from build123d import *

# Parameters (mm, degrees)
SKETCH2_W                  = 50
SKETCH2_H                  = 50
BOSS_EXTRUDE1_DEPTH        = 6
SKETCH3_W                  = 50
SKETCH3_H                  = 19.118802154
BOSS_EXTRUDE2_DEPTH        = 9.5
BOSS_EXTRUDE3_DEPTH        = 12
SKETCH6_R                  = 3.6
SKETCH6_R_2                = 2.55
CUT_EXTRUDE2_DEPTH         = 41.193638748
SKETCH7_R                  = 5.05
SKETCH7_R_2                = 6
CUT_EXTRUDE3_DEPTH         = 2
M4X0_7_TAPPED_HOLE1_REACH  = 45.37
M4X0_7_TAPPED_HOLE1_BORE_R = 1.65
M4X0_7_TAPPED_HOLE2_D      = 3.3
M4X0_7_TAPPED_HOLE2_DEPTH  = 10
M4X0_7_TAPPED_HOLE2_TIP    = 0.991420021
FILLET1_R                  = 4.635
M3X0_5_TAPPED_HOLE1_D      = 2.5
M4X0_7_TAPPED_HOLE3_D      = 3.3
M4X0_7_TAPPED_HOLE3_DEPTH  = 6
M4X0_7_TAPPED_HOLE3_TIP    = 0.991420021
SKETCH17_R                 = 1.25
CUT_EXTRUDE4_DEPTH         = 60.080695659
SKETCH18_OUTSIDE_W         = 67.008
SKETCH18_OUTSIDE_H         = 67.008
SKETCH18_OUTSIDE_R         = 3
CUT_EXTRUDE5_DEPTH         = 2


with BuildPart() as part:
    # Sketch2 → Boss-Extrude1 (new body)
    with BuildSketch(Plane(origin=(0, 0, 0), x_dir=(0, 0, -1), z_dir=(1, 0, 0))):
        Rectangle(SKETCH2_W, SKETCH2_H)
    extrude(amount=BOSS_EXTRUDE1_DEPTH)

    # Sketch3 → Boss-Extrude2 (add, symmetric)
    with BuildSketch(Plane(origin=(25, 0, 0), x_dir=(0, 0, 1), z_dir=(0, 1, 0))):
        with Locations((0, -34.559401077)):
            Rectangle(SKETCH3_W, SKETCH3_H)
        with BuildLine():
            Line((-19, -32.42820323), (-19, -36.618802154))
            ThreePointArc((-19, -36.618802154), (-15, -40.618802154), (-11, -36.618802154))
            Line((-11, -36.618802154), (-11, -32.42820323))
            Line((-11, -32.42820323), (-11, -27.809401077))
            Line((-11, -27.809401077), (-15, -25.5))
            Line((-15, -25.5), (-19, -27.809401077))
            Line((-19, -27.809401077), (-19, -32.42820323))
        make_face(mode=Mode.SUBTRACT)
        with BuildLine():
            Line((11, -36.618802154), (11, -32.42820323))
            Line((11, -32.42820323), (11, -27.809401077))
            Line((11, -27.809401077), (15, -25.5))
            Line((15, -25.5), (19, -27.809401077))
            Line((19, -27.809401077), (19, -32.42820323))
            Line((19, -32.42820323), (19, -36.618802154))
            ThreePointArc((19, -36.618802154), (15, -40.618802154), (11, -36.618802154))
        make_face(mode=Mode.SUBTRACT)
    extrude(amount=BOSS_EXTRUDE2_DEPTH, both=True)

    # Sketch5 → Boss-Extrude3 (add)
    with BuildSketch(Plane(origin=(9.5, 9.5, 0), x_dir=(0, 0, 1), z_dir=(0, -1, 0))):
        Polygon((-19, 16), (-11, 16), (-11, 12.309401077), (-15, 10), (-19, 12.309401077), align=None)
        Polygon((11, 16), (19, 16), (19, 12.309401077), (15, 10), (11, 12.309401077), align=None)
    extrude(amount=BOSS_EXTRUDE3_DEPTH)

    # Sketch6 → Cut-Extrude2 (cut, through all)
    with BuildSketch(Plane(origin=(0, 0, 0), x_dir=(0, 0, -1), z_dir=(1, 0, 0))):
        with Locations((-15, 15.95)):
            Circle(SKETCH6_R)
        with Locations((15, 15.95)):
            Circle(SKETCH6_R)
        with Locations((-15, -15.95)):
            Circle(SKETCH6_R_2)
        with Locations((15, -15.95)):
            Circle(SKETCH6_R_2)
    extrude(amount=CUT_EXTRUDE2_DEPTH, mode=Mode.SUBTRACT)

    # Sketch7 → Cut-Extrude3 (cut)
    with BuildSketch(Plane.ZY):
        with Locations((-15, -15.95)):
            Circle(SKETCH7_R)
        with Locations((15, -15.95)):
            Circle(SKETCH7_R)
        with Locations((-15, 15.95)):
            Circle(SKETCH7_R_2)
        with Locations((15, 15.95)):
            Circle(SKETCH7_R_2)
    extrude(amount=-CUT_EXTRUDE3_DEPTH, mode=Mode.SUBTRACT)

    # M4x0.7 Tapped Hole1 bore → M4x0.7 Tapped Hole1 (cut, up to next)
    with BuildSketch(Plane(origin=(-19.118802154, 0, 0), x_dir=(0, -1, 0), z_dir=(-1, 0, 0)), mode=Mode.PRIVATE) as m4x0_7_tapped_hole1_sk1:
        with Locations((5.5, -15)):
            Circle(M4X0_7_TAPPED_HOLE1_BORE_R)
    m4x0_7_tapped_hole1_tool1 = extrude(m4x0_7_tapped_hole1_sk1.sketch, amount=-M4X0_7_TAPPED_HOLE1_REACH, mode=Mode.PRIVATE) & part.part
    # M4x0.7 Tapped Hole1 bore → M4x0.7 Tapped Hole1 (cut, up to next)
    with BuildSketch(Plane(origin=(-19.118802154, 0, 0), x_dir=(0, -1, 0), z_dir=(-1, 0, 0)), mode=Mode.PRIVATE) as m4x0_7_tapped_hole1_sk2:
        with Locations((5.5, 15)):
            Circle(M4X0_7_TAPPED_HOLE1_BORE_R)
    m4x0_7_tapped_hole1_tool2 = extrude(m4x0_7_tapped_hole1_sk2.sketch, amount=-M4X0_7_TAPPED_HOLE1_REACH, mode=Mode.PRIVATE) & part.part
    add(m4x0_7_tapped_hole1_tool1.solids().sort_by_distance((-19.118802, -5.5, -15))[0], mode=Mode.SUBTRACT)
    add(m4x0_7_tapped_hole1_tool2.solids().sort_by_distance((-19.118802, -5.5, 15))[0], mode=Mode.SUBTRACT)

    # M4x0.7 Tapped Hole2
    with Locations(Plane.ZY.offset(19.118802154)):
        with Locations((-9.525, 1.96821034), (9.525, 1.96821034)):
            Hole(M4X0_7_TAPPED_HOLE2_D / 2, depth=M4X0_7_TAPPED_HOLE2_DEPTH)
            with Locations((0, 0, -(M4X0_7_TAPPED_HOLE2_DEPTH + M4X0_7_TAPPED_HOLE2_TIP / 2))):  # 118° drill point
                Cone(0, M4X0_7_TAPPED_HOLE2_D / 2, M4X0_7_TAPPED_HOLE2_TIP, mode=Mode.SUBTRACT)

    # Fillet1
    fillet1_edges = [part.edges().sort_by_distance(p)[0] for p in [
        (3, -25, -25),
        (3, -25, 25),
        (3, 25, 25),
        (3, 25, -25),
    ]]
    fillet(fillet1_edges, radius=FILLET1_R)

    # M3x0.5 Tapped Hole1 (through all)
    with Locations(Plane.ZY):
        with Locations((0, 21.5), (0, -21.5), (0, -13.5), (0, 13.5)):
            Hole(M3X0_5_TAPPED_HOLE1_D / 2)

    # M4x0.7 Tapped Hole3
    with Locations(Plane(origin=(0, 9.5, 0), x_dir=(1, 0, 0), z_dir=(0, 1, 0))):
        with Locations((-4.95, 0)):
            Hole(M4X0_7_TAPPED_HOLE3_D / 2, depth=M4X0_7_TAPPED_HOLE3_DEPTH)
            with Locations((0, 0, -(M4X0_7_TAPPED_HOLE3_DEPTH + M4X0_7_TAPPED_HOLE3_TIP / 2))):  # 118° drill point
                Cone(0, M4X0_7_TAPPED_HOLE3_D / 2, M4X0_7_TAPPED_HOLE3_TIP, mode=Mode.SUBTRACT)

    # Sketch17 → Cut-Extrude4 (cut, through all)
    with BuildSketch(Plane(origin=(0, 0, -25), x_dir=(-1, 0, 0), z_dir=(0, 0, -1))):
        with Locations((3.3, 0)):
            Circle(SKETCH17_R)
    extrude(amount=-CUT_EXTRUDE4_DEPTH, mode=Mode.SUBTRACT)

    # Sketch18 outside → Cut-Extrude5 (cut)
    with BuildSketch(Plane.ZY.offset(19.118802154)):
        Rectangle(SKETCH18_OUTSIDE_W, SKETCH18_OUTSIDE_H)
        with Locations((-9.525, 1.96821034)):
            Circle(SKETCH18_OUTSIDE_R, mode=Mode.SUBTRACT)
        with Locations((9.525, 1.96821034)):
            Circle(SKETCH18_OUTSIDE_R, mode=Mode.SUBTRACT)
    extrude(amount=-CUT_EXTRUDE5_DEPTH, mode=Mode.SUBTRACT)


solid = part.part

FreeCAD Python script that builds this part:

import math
import FreeCAD as App
import Part
import Sketcher

V = App.Vector
Q = App.Units.Quantity


def edges_at(feature, points):
    """Names of the edges that pass closest to the given points."""
    edges = feature.Shape.Edges
    near = lambda p: min(range(len(edges)), key=lambda i: edges[i].distToShape(Part.Vertex(*p))[0])
    return sorted({f"Edge{near(p) + 1}" for p in points})

doc = App.newDocument("Part")
body = doc.addObject("PartDesign::Body", "Body")

sketch1 = body.newObject("Sketcher::SketchObject", "Sketch")
sketch1.AttachmentSupport = (doc.getObject("YZ_Plane"), [""])
sketch1.MapMode = "FlatFace"
sketch1.addGeometry(Part.LineSegment(V(25, 25, 0), V(-25, 25, 0)), False)
sketch1.addGeometry(Part.LineSegment(V(-25, 25, 0), V(-25, -25, 0)), False)
sketch1.addGeometry(Part.LineSegment(V(-25, -25, 0), V(25, -25, 0)), False)
sketch1.addGeometry(Part.LineSegment(V(25, -25, 0), V(25, 25, 0)), False)
sketch1.addConstraint(Sketcher.Constraint("Coincident", 0, 2, 1, 1))
sketch1.addConstraint(Sketcher.Constraint("Coincident", 1, 2, 2, 1))
sketch1.addConstraint(Sketcher.Constraint("Coincident", 2, 2, 3, 1))
sketch1.addConstraint(Sketcher.Constraint("Coincident", 3, 2, 0, 1))
sketch1.addConstraint(Sketcher.Constraint("Horizontal", 0))
sketch1.addConstraint(Sketcher.Constraint("Vertical", 1))
sketch1.addConstraint(Sketcher.Constraint("Horizontal", 2))
sketch1.addConstraint(Sketcher.Constraint("Vertical", 3))
sketch1.addConstraint(Sketcher.Constraint("Symmetric", 0, 2, 2, 2, -1, 1))
sketch1.addConstraint(Sketcher.Constraint("Equal", 2, 1))
sketch1.addConstraint(Sketcher.Constraint("DistanceX", 0, 2, 0, 1, 50.0))
pad1 = body.newObject("PartDesign::Pad", "Pad")
pad1.Profile = sketch1
pad1.Length = 6

sketch2 = body.newObject("Sketcher::SketchObject", "Sketch001")
sketch2.AttachmentSupport = (doc.getObject("XZ_Plane"), [""])
sketch2.MapMode = "FlatFace"
sketch2.addGeometry(Part.LineSegment(V(0, -25, 0), V(-19.1, -25, 0)), False)
sketch2.addGeometry(Part.LineSegment(V(-19.1, -25, 0), V(-19.1, 25, 0)), False)
sketch2.addGeometry(Part.LineSegment(V(-19.1, 25, 0), V(0, 25, 0)), False)
sketch2.addGeometry(Part.LineSegment(V(0, 25, 0), V(0, -25, 0)), False)
sketch2.addGeometry(Part.ArcOfCircle(Part.Circle(V(-11.6, -15, 0), V(0, 0, 1), 4), math.radians(90), math.radians(270)), False)
sketch2.addGeometry(Part.LineSegment(V(-11.6, -19, 0), V(-2.8, -19, 0)), False)
sketch2.addGeometry(Part.LineSegment(V(-2.8, -19, 0), V(-0.5, -15, 0)), False)
sketch2.addGeometry(Part.LineSegment(V(-0.5, -15, 0), V(-2.8, -11, 0)), False)
sketch2.addGeometry(Part.LineSegment(V(-2.8, -11, 0), V(-11.6, -11, 0)), False)
sketch2.addGeometry(Part.ArcOfCircle(Part.Circle(V(-11.6, 15, 0), V(0, 0, 1), 4), math.radians(90), math.radians(270)), False)
sketch2.addGeometry(Part.LineSegment(V(-11.6, 11, 0), V(-2.8, 11, 0)), False)
sketch2.addGeometry(Part.LineSegment(V(-2.8, 11, 0), V(-0.5, 15, 0)), False)
sketch2.addGeometry(Part.LineSegment(V(-0.5, 15, 0), V(-2.8, 19, 0)), False)
sketch2.addGeometry(Part.LineSegment(V(-2.8, 19, 0), V(-11.6, 19, 0)), False)
sketch2.addConstraint(Sketcher.Constraint("Coincident", 0, 2, 1, 1))
sketch2.addConstraint(Sketcher.Constraint("Coincident", 1, 2, 2, 1))
sketch2.addConstraint(Sketcher.Constraint("Coincident", 2, 2, 3, 1))
sketch2.addConstraint(Sketcher.Constraint("Coincident", 3, 2, 0, 1))
sketch2.addConstraint(Sketcher.Constraint("Tangent", 4, 2, 5, 1))
sketch2.addConstraint(Sketcher.Constraint("Coincident", 5, 2, 6, 1))
sketch2.addConstraint(Sketcher.Constraint("Coincident", 6, 2, 7, 1))
sketch2.addConstraint(Sketcher.Constraint("Coincident", 7, 2, 8, 1))
sketch2.addConstraint(Sketcher.Constraint("Tangent", 8, 2, 4, 1))
sketch2.addConstraint(Sketcher.Constraint("Tangent", 9, 2, 10, 1))
sketch2.addConstraint(Sketcher.Constraint("Coincident", 10, 2, 11, 1))
sketch2.addConstraint(Sketcher.Constraint("Coincident", 11, 2, 12, 1))
sketch2.addConstraint(Sketcher.Constraint("Coincident", 12, 2, 13, 1))
sketch2.addConstraint(Sketcher.Constraint("Tangent", 13, 2, 9, 1))
sketch2.addConstraint(Sketcher.Constraint("Horizontal", 0))
sketch2.addConstraint(Sketcher.Constraint("Vertical", 1))
sketch2.addConstraint(Sketcher.Constraint("Horizontal", 2))
sketch2.addConstraint(Sketcher.Constraint("Vertical", 3))
sketch2.addConstraint(Sketcher.Constraint("Horizontal", 5))
sketch2.addConstraint(Sketcher.Constraint("Horizontal", 8))
sketch2.addConstraint(Sketcher.Constraint("Horizontal", 10))
sketch2.addConstraint(Sketcher.Constraint("Horizontal", 13))
sketch2.addConstraint(Sketcher.Constraint("Equal", 4, 9))
sketch2.addConstraint(Sketcher.Constraint("Symmetric", 2, 2, 3, 2, -1, 1))
sketch2.addConstraint(Sketcher.Constraint("Symmetric", 4, 3, 9, 3, -1))
sketch2.addConstraint(Sketcher.Constraint("Symmetric", 6, 2, 11, 2, -1))
sketch2.addConstraint(Sketcher.Constraint("Parallel", 6, 11))
sketch2.addConstraint(Sketcher.Constraint("Parallel", 7, 12))
sketch2.addConstraint(Sketcher.Constraint("Horizontal", 4, 3, 6, 2))
sketch2.addConstraint(Sketcher.Constraint("Vertical", 5, 2, 7, 2))
sketch2.addConstraint(Sketcher.Constraint("Radius", 4, 4.0))
sketch2.addConstraint(Sketcher.Constraint("DistanceY", 1, 1, 1, 2, 50.0))
sketch2.addConstraint(Sketcher.Constraint("Angle", 6, Q("60 deg")))
sketch2.addConstraint(Sketcher.Constraint("DistanceY", 4, 3, -1, 1, 15.0))
sketch2.addConstraint(Sketcher.Constraint("DistanceX", 6, 2, -1, 1, 0.5))
sketch2.addConstraint(Sketcher.Constraint("DistanceX", 0, 2, 4, 3, 7.5))
sketch2.addConstraint(Sketcher.Constraint("DistanceX", 5, 1, 5, 2, 8.809401))
pad2 = body.newObject("PartDesign::Pad", "Pad001")
pad2.Profile = sketch2
pad2.Length = 19
pad2.Midplane = True

sketch3 = body.newObject("Sketcher::SketchObject", "Sketch002")
sketch3.AttachmentSupport = (doc.getObject("XZ_Plane"), [""])
sketch3.MapMode = "FlatFace"
sketch3.AttachmentOffset = App.Placement(V(0, 0, -9.5), App.Rotation())
sketch3.addGeometry(Part.LineSegment(V(-6.5, -11, 0), V(-6.5, -19, 0)), False)
sketch3.addGeometry(Part.LineSegment(V(-6.5, -19, 0), V(-2.8, -19, 0)), False)
sketch3.addGeometry(Part.LineSegment(V(-2.8, -19, 0), V(-0.5, -15, 0)), False)
sketch3.addGeometry(Part.LineSegment(V(-0.5, -15, 0), V(-2.8, -11, 0)), False)
sketch3.addGeometry(Part.LineSegment(V(-2.8, -11, 0), V(-6.5, -11, 0)), False)
sketch3.addGeometry(Part.LineSegment(V(-6.5, 19, 0), V(-6.5, 11, 0)), False)
sketch3.addGeometry(Part.LineSegment(V(-6.5, 11, 0), V(-2.8, 11, 0)), False)
sketch3.addGeometry(Part.LineSegment(V(-2.8, 11, 0), V(-0.5, 15, 0)), False)
sketch3.addGeometry(Part.LineSegment(V(-0.5, 15, 0), V(-2.8, 19, 0)), False)
sketch3.addGeometry(Part.LineSegment(V(-2.8, 19, 0), V(-6.5, 19, 0)), False)
sketch3.addConstraint(Sketcher.Constraint("Coincident", 0, 2, 1, 1))
sketch3.addConstraint(Sketcher.Constraint("Coincident", 1, 2, 2, 1))
sketch3.addConstraint(Sketcher.Constraint("Coincident", 2, 2, 3, 1))
sketch3.addConstraint(Sketcher.Constraint("Coincident", 3, 2, 4, 1))
sketch3.addConstraint(Sketcher.Constraint("Coincident", 4, 2, 0, 1))
sketch3.addConstraint(Sketcher.Constraint("Coincident", 5, 2, 6, 1))
sketch3.addConstraint(Sketcher.Constraint("Coincident", 6, 2, 7, 1))
sketch3.addConstraint(Sketcher.Constraint("Coincident", 7, 2, 8, 1))
sketch3.addConstraint(Sketcher.Constraint("Coincident", 8, 2, 9, 1))
sketch3.addConstraint(Sketcher.Constraint("Coincident", 9, 2, 5, 1))
sketch3.addConstraint(Sketcher.Constraint("Vertical", 0))
sketch3.addConstraint(Sketcher.Constraint("Horizontal", 1))
sketch3.addConstraint(Sketcher.Constraint("Horizontal", 4))
sketch3.addConstraint(Sketcher.Constraint("Vertical", 5))
sketch3.addConstraint(Sketcher.Constraint("Horizontal", 6))
sketch3.addConstraint(Sketcher.Constraint("Horizontal", 9))
sketch3.addConstraint(Sketcher.Constraint("Symmetric", 4, 2, 5, 2, -1))
sketch3.addConstraint(Sketcher.Constraint("Symmetric", 2, 2, 7, 2, -1))
sketch3.addConstraint(Sketcher.Constraint("Symmetric", 1, 2, 8, 2, -1))
sketch3.addConstraint(Sketcher.Constraint("Parallel", 2, 7))
sketch3.addConstraint(Sketcher.Constraint("Parallel", 3, 8))
sketch3.addConstraint(Sketcher.Constraint("Vertical", 1, 2, 3, 2))
sketch3.addConstraint(Sketcher.Constraint("DistanceY", 0, 2, 0, 1, 8.0))
sketch3.addConstraint(Sketcher.Constraint("Angle", 2, Q("60 deg")))
sketch3.addConstraint(Sketcher.Constraint("DistanceY", 0, 2, -1, 1, 19.0))
sketch3.addConstraint(Sketcher.Constraint("DistanceX", 0, 2, 2, 2, 6.0))
sketch3.addConstraint(Sketcher.Constraint("DistanceX", 0, 2, -1, 1, 6.5))
pad3 = body.newObject("PartDesign::Pad", "Pad002")
pad3.Profile = sketch3
pad3.Length = 12

sketch4 = body.newObject("Sketcher::SketchObject", "Sketch003")
sketch4.AttachmentSupport = (doc.getObject("YZ_Plane"), [""])
sketch4.MapMode = "FlatFace"
sketch4.addGeometry(Part.Circle(V(15.9, 15, 0), V(0, 0, 1), 3.6), False)
sketch4.addGeometry(Part.Circle(V(15.9, -15, 0), V(0, 0, 1), 3.6), False)
sketch4.addGeometry(Part.Circle(V(-15.9, 15, 0), V(0, 0, 1), 2.5), False)
sketch4.addGeometry(Part.Circle(V(-15.9, -15, 0), V(0, 0, 1), 2.5), False)
sketch4.addConstraint(Sketcher.Constraint("Equal", 0, 1))
sketch4.addConstraint(Sketcher.Constraint("Equal", 2, 3))
sketch4.addConstraint(Sketcher.Constraint("Symmetric", 1, 3, 2, 3, -1, 1))
sketch4.addConstraint(Sketcher.Constraint("Symmetric", 0, 3, 3, 3, -1, 1))
sketch4.addConstraint(Sketcher.Constraint("Symmetric", 0, 3, 2, 3, -2))
sketch4.addConstraint(Sketcher.Constraint("Diameter", 0, 7.2))
sketch4.addConstraint(Sketcher.Constraint("Diameter", 2, 5.1))
sketch4.addConstraint(Sketcher.Constraint("DistanceY", -1, 1, 0, 3, 15.0))
sketch4.addConstraint(Sketcher.Constraint("DistanceX", 2, 3, 0, 3, 31.9))
pocket1 = body.newObject("PartDesign::Pocket", "Pocket")
pocket1.Profile = sketch4
pocket1.Type = "ThroughAll"
pocket1.Reversed = True

sketch5 = body.newObject("Sketcher::SketchObject", "Sketch004")
sketch5.AttachmentSupport = (doc.getObject("YZ_Plane"), [""])
sketch5.MapMode = "FlatFace"
sketch5.addGeometry(Part.Circle(V(-16, -15, 0), V(0, 0, 1), 5), False)
sketch5.addGeometry(Part.Circle(V(-16, 15, 0), V(0, 0, 1), 5), False)
sketch5.addGeometry(Part.Circle(V(16, -15, 0), V(0, 0, 1), 6), False)
sketch5.addGeometry(Part.Circle(V(16, 15, 0), V(0, 0, 1), 6), False)
sketch5.addConstraint(Sketcher.Constraint("Equal", 0, 1))
sketch5.addConstraint(Sketcher.Constraint("Equal", 2, 3))
sketch5.addConstraint(Sketcher.Constraint("Symmetric", 1, 3, 2, 3, -1, 1))
sketch5.addConstraint(Sketcher.Constraint("Symmetric", 0, 3, 3, 3, -1, 1))
sketch5.addConstraint(Sketcher.Constraint("Symmetric", 0, 3, 2, 3, -2))
sketch5.addConstraint(Sketcher.Constraint("Diameter", 2, 12.0))
sketch5.addConstraint(Sketcher.Constraint("Diameter", 0, 10.1))
sketch5.addConstraint(Sketcher.Constraint("DistanceY", 0, 3, -1, 1, 15.0))
sketch5.addConstraint(Sketcher.Constraint("DistanceX", 0, 3, 2, 3, 31.9))
pocket2 = body.newObject("PartDesign::Pocket", "Pocket001")
pocket2.Profile = sketch5
pocket2.Length = 2
pocket2.Reversed = True

sketch6 = body.newObject("Sketcher::SketchObject", "Sketch005")
sketch6.AttachmentSupport = (doc.getObject("YZ_Plane"), [""])
sketch6.MapMode = "FlatFace"
sketch6.AttachmentOffset = App.Placement(V(0, 0, -19.118802), App.Rotation())
sketch6.addGeometry(Part.Circle(V(-5.5, -15, 0), V(0, 0, 1), 1.6), False)
sketch6.addConstraint(Sketcher.Constraint("Diameter", 0, 3.3))
sketch6.addConstraint(Sketcher.Constraint("DistanceY", 0, 3, -1, 1, 15.0))
sketch6.addConstraint(Sketcher.Constraint("DistanceX", 0, 3, -1, 1, 5.5))
pocket3 = body.newObject("PartDesign::Pocket", "Pocket002")
pocket3.Profile = sketch6
pocket3.Type = "UpToFirst"
pocket3.Reversed = True

sketch7 = body.newObject("Sketcher::SketchObject", "Sketch006")
sketch7.AttachmentSupport = (doc.getObject("YZ_Plane"), [""])
sketch7.MapMode = "FlatFace"
sketch7.AttachmentOffset = App.Placement(V(0, 0, -19.118802), App.Rotation())
sketch7.addGeometry(Part.Circle(V(-5.5, 15, 0), V(0, 0, 1), 1.6), False)
sketch7.addConstraint(Sketcher.Constraint("Diameter", 0, 3.3))
sketch7.addConstraint(Sketcher.Constraint("DistanceY", -1, 1, 0, 3, 15.0))
sketch7.addConstraint(Sketcher.Constraint("DistanceX", 0, 3, -1, 1, 5.5))
pocket4 = body.newObject("PartDesign::Pocket", "Pocket003")
pocket4.Profile = sketch7
pocket4.Type = "UpToFirst"
pocket4.Reversed = True

sketch8 = body.newObject("Sketcher::SketchObject", "Sketch007")
sketch8.AttachmentSupport = (doc.getObject("YZ_Plane"), [""])
sketch8.MapMode = "FlatFace"
sketch8.AttachmentOffset = App.Placement(V(0, 0, -19.118802), App.Rotation())
sketch8.addGeometry(Part.Circle(V(2, -9.5, 0), V(0, 0, 1), 1.6), False)
sketch8.addGeometry(Part.Circle(V(2, 9.5, 0), V(0, 0, 1), 1.6), False)
sketch8.addConstraint(Sketcher.Constraint("Equal", 0, 1))
sketch8.addConstraint(Sketcher.Constraint("Symmetric", 0, 3, 1, 3, -1))
sketch8.addConstraint(Sketcher.Constraint("Diameter", 0, 3.3))
sketch8.addConstraint(Sketcher.Constraint("DistanceY", 0, 3, 1, 3, 19.05))
sketch8.addConstraint(Sketcher.Constraint("DistanceX", -1, 1, 0, 3, 1.96821))
doc.recompute()
hole = body.newObject("PartDesign::Hole", "Hole")
hole.Profile = sketch8
hole.ThreadType = "None"
hole.Diameter = 3.3
hole.DepthType = "Dimension"
hole.Depth = 10
hole.DrillPoint = "Angled"
hole.DrillPointAngle = 118
hole.Reversed = True
doc.recompute()

fillet = body.newObject("PartDesign::Fillet", "Fillet")
fillet.Base = (hole, edges_at(hole, [
    (3, -25, -25),
    (3, -25, 25),
    (3, 25, 25),
    (3, 25, -25),
]))
fillet.Radius = 4.635

sketch9 = body.newObject("Sketcher::SketchObject", "Sketch008")
sketch9.AttachmentSupport = (doc.getObject("YZ_Plane"), [""])
sketch9.MapMode = "FlatFace"
sketch9.addGeometry(Part.Circle(V(21.5, 0, 0), V(0, 0, 1), 1.2), False)
sketch9.addGeometry(Part.Circle(V(-21.5, 0, 0), V(0, 0, 1), 1.2), False)
sketch9.addGeometry(Part.Circle(V(-13.5, 0, 0), V(0, 0, 1), 1.2), False)
sketch9.addGeometry(Part.Circle(V(13.5, 0, 0), V(0, 0, 1), 1.2), False)
sketch9.addConstraint(Sketcher.Constraint("Equal", 0, 1))
sketch9.addConstraint(Sketcher.Constraint("Equal", 1, 2))
sketch9.addConstraint(Sketcher.Constraint("Equal", 2, 3))
sketch9.addConstraint(Sketcher.Constraint("Symmetric", 0, 3, 1, 3, -1, 1))
sketch9.addConstraint(Sketcher.Constraint("Symmetric", 2, 3, 3, 3, -1, 1))
sketch9.addConstraint(Sketcher.Constraint("PointOnObject", 0, 3, -1))
sketch9.addConstraint(Sketcher.Constraint("PointOnObject", 2, 3, -1))
sketch9.addConstraint(Sketcher.Constraint("Diameter", 0, 2.5))
sketch9.addConstraint(Sketcher.Constraint("DistanceX", 1, 3, 0, 3, 43.0))
sketch9.addConstraint(Sketcher.Constraint("DistanceX", 1, 3, 2, 3, 8.0))
doc.recompute()
hole2 = body.newObject("PartDesign::Hole", "Hole001")
hole2.Profile = sketch9
hole2.ThreadType = "None"
hole2.Diameter = 2.5
hole2.DepthType = "ThroughAll"
hole2.Reversed = True

sketch10 = body.newObject("Sketcher::SketchObject", "Sketch009")
sketch10.AttachmentSupport = (doc.getObject("XZ_Plane"), [""])
sketch10.MapMode = "FlatFace"
sketch10.AttachmentOffset = App.Placement(V(0, 0, -9.5), App.Rotation())
sketch10.addGeometry(Part.Circle(V(-5, 0, 0), V(0, 0, 1), 1.6), False)
sketch10.addConstraint(Sketcher.Constraint("PointOnObject", 0, 3, -1))
sketch10.addConstraint(Sketcher.Constraint("Diameter", 0, 3.3))
sketch10.addConstraint(Sketcher.Constraint("DistanceX", 0, 3, -1, 1, 4.95))
doc.recompute()
hole3 = body.newObject("PartDesign::Hole", "Hole002")
hole3.Profile = sketch10
hole3.ThreadType = "None"
hole3.Diameter = 3.3
hole3.DepthType = "Dimension"
hole3.Depth = 6
hole3.DrillPoint = "Angled"
hole3.DrillPointAngle = 118
hole3.Reversed = True

sketch11 = body.newObject("Sketcher::SketchObject", "Sketch010")
sketch11.AttachmentSupport = (doc.getObject("XY_Plane"), [""])
sketch11.MapMode = "FlatFace"
sketch11.AttachmentOffset = App.Placement(V(0, 0, -25), App.Rotation())
sketch11.addGeometry(Part.Circle(V(-3.3, 0, 0), V(0, 0, 1), 1.2), False)
sketch11.addConstraint(Sketcher.Constraint("PointOnObject", 0, 3, -1))
sketch11.addConstraint(Sketcher.Constraint("Diameter", 0, 2.5))
sketch11.addConstraint(Sketcher.Constraint("DistanceX", 0, 3, -1, 1, 3.3))
pocket5 = body.newObject("PartDesign::Pocket", "Pocket004")
pocket5.Profile = sketch11
pocket5.Type = "ThroughAll"
pocket5.Reversed = True

sketch12 = body.newObject("Sketcher::SketchObject", "Sketch011")
sketch12.AttachmentSupport = (doc.getObject("YZ_Plane"), [""])
sketch12.MapMode = "FlatFace"
sketch12.AttachmentOffset = App.Placement(V(0, 0, -19.118802), App.Rotation())
sketch12.addGeometry(Part.LineSegment(V(33.5, -33.5, 0), V(-33.5, -33.5, 0)), False)
sketch12.addGeometry(Part.LineSegment(V(-33.5, -33.5, 0), V(-33.5, 33.5, 0)), False)
sketch12.addGeometry(Part.LineSegment(V(-33.5, 33.5, 0), V(33.5, 33.5, 0)), False)
sketch12.addGeometry(Part.LineSegment(V(33.5, 33.5, 0), V(33.5, -33.5, 0)), False)
sketch12.addGeometry(Part.Circle(V(2, -9.5, 0), V(0, 0, 1), 3), False)
sketch12.addGeometry(Part.Circle(V(2, 9.5, 0), V(0, 0, 1), 3), False)
sketch12.addConstraint(Sketcher.Constraint("Coincident", 0, 2, 1, 1))
sketch12.addConstraint(Sketcher.Constraint("Coincident", 1, 2, 2, 1))
sketch12.addConstraint(Sketcher.Constraint("Coincident", 2, 2, 3, 1))
sketch12.addConstraint(Sketcher.Constraint("Coincident", 3, 2, 0, 1))
sketch12.addConstraint(Sketcher.Constraint("Horizontal", 0))
sketch12.addConstraint(Sketcher.Constraint("Vertical", 1))
sketch12.addConstraint(Sketcher.Constraint("Horizontal", 2))
sketch12.addConstraint(Sketcher.Constraint("Vertical", 3))
sketch12.addConstraint(Sketcher.Constraint("Equal", 4, 5))
sketch12.addConstraint(Sketcher.Constraint("Symmetric", 0, 2, 2, 2, -1, 1))
sketch12.addConstraint(Sketcher.Constraint("Symmetric", 4, 3, 5, 3, -1))
sketch12.addConstraint(Sketcher.Constraint("Equal", 2, 1))
sketch12.addConstraint(Sketcher.Constraint("Diameter", 4, 6.0))
sketch12.addConstraint(Sketcher.Constraint("DistanceX", 0, 2, 0, 1, 67.008))
sketch12.addConstraint(Sketcher.Constraint("DistanceY", 4, 3, 5, 3, 19.05))
sketch12.addConstraint(Sketcher.Constraint("DistanceX", -1, 1, 4, 3, 1.96821))
pocket6 = body.newObject("PartDesign::Pocket", "Pocket005")
pocket6.Profile = sketch12
pocket6.Length = 2
pocket6.Reversed = True

doc.recompute()
